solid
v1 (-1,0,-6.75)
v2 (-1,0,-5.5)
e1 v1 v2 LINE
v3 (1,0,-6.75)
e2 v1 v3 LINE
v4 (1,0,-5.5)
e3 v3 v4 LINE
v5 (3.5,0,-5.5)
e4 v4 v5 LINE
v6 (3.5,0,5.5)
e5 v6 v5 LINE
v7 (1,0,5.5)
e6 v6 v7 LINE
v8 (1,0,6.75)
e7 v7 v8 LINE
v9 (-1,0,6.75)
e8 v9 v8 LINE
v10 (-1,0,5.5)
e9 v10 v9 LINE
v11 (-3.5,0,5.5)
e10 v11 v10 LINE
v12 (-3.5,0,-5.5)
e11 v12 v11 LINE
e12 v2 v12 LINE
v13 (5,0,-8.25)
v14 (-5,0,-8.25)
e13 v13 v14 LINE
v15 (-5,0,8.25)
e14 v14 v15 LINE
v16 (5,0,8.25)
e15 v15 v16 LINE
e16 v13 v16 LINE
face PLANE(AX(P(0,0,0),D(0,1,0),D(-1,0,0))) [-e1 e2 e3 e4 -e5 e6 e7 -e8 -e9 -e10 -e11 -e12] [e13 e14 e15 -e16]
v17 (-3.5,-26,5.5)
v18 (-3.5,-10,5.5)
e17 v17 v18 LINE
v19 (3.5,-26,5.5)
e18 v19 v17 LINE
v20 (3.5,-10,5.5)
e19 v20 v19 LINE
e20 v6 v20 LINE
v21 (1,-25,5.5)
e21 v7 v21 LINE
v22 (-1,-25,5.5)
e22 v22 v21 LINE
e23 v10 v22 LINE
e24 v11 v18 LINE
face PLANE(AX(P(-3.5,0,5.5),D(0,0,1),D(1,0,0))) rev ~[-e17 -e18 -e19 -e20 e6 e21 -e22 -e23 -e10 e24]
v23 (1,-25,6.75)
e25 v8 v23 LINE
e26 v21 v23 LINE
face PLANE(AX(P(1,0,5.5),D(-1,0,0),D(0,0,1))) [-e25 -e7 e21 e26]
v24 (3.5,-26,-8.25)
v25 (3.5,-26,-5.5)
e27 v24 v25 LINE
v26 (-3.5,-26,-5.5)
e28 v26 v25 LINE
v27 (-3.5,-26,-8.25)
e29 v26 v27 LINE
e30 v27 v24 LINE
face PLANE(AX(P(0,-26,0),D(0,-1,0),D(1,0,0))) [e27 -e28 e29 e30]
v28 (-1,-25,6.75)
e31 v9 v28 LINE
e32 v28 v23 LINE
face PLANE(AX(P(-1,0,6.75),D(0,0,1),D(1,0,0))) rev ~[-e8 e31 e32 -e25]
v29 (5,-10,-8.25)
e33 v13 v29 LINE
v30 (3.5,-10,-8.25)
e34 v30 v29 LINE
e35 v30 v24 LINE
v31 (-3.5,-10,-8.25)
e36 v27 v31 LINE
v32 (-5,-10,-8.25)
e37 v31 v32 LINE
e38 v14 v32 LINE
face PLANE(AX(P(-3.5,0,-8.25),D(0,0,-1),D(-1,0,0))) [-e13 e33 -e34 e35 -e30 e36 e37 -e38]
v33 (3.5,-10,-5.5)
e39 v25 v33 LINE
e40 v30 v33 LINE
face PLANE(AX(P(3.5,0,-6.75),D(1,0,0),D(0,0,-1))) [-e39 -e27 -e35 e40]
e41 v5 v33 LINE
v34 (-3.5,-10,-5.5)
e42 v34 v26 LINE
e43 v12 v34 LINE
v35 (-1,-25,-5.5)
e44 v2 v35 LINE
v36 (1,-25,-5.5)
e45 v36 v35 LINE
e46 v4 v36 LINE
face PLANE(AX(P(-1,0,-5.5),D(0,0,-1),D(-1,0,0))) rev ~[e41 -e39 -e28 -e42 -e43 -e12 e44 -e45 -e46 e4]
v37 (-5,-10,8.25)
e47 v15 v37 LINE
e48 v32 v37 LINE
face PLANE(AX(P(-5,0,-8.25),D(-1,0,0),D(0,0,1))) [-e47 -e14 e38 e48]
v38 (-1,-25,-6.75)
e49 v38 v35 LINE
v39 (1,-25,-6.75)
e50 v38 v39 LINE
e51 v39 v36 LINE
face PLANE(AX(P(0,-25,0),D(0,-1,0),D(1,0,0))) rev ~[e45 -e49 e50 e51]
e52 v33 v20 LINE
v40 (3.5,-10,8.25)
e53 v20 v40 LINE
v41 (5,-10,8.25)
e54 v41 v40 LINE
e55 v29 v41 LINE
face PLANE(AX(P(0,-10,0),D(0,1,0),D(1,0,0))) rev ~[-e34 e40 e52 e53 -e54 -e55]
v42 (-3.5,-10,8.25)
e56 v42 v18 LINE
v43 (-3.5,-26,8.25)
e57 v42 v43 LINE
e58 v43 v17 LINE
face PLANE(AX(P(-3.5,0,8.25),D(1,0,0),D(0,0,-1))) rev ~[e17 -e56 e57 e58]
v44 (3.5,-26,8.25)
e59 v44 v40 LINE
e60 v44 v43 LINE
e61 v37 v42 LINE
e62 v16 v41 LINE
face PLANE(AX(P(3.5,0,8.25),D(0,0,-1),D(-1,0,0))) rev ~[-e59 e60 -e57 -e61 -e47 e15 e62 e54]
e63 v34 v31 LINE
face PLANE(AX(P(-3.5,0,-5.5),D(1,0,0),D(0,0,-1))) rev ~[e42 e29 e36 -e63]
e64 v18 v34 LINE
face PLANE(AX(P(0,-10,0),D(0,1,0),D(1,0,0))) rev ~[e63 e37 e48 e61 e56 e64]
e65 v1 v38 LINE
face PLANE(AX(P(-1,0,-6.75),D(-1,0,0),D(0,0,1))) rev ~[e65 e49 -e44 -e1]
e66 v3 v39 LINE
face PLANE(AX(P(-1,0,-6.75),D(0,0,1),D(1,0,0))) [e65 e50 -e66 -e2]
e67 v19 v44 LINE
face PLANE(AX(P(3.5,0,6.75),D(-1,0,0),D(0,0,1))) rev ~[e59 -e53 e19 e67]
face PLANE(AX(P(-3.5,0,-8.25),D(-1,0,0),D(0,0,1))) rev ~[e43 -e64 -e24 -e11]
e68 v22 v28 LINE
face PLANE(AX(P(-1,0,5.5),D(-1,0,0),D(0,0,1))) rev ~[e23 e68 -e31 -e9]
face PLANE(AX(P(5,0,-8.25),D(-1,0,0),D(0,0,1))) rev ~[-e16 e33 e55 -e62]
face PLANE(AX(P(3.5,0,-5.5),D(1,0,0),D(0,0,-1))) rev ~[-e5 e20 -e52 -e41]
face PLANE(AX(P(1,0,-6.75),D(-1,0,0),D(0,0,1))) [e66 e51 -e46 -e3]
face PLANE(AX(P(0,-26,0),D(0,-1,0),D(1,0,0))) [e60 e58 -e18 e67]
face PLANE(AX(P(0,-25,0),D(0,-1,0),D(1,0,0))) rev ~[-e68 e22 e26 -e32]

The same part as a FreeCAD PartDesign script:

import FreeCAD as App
import Part
import Sketcher

V = App.Vector

doc = App.newDocument("Part")
params = doc.addObject("Spreadsheet::Sheet", "Params")
for row, (alias, value) in enumerate([
    ("sketch1_width", "2 mm"),
    ("sketch1_width2", "2.5 mm"),
    ("sketch1_height", "1.25 mm"),
    ("pad1_length", "25 mm"),
    ("sketch2_width", "1.5 mm"),
    ("sketch2_height", "16.5 mm"),
    ("pad2_length", "10 mm"),
    ("sketch3_width", "7 mm"),
    ("sketch3_height", "2.75 mm"),
    ("pad3_length", "1 mm"),
], start=1):
    params.set(f"A{row}", alias)
    params.set(f"B{row}", "=" + value)
    params.setAlias(f"B{row}", alias)

body = doc.addObject("PartDesign::Body", "Body")
body.AllowCompound = True

sketch1 = doc.addObject("Sketcher::SketchObject", "Sketch")
body.addObject(sketch1)
sketch1.AttachmentSupport = (doc.XZ_Plane, [""])
sketch1.MapMode = "FlatFace"
sketch1.addGeometry([
    Part.LineSegment(V(1, 6.8, 0), V(-1, 6.8, 0)),
    Part.LineSegment(V(-1, 6.8, 0), V(-1, 5.5, 0)),
    Part.LineSegment(V(-1, 5.5, 0), V(-3.5, 5.5, 0)),
    Part.LineSegment(V(-3.5, 5.5, 0), V(-3.5, 8.2, 0)),
    Part.LineSegment(V(-3.5, 8.2, 0), V(3.5, 8.2, 0)),
    Part.LineSegment(V(3.5, 8.2, 0), V(3.5, 5.5, 0)),
    Part.LineSegment(V(3.5, 5.5, 0), V(1, 5.5, 0)),
    Part.LineSegment(V(1, 5.5, 0), V(1, 6.8, 0)),
    Part.LineSegment(V(-3.5, -5.5, 0), V(-1, -5.5, 0)),
    Part.LineSegment(V(-1, -5.5, 0), V(-1, -6.8, 0)),
    Part.LineSegment(V(-1, -6.8, 0), V(1, -6.8, 0)),
    Part.LineSegment(V(1, -6.8, 0), V(1, -5.5, 0)),
    Part.LineSegment(V(1, -5.5, 0), V(3.5, -5.5, 0)),
    Part.LineSegment(V(3.5, -5.5, 0), V(3.5, -8.2, 0)),
    Part.LineSegment(V(3.5, -8.2, 0), V(-3.5, -8.2, 0)),
    Part.LineSegment(V(-3.5, -8.2, 0), V(-3.5, -5.5, 0)),
], False)
sketch1.addConstraint([
    Sketcher.Constraint("Coincident", 0, 2, 1, 1),
    Sketcher.Constraint("Coincident", 1, 2, 2, 1),
    Sketcher.Constraint("Coincident", 2, 2, 3, 1),
    Sketcher.Constraint("Coincident", 3, 2, 4, 1),
    Sketcher.Constraint("Coincident", 4, 2, 5, 1),
    Sketcher.Constraint("Coincident", 5, 2, 6, 1),
    Sketcher.Constraint("Coincident", 6, 2, 7, 1),
    Sketcher.Constraint("Coincident", 7, 2, 0, 1),
    Sketcher.Constraint("Coincident", 8, 2, 9, 1),
    Sketcher.Constraint("Coincident", 9, 2, 10, 1),
    Sketcher.Constraint("Coincident", 10, 2, 11, 1),
    Sketcher.Constraint("Coincident", 11, 2, 12, 1),
    Sketcher.Constraint("Coincident", 12, 2, 13, 1),
    Sketcher.Constraint("Coincident", 13, 2, 14, 1),
    Sketcher.Constraint("Coincident", 14, 2, 15, 1),
    Sketcher.Constraint("Coincident", 15, 2, 8, 1),
    Sketcher.Constraint("Horizontal", 0),
    Sketcher.Constraint("Vertical", 1),
    Sketcher.Constraint("Horizontal", 2),
    Sketcher.Constraint("Vertical", 3),
    Sketcher.Constraint("Horizontal", 4),
    Sketcher.Constraint("Vertical", 5),
    Sketcher.Constraint("Horizontal", 6),
    Sketcher.Constraint("Vertical", 7),
    Sketcher.Constraint("Horizontal", 8),
    Sketcher.Constraint("Vertical", 9),
    Sketcher.Constraint("Horizontal", 10),
    Sketcher.Constraint("Vertical", 11),
    Sketcher.Constraint("Horizontal", 12),
    Sketcher.Constraint("Vertical", 13),
    Sketcher.Constraint("Horizontal", 14),
    Sketcher.Constraint("Vertical", 15),
    Sketcher.Constraint("Symmetric", 6, 2, 8, 2, -1, 1),
    Sketcher.Constraint("Symmetric", 0, 2, 10, 2, -1, 1),
    Sketcher.Constraint("Symmetric", 2, 2, 12, 2, -1, 1),
    Sketcher.Constraint("Symmetric", 4, 2, 14, 2, -1, 1),
    Sketcher.Constraint("Symmetric", 2, 2, 5, 2, -2),
    Sketcher.Constraint("Vertical", 1, 2, 8, 2),
    Sketcher.Constraint("DistanceX", 0, 2, 0, 1, 2.0),
    Sketcher.Constraint("DistanceX", 2, 2, 2, 1, 2.5),
    Sketcher.Constraint("DistanceY", 8, 2, 1, 2, 11.0),
    Sketcher.Constraint("DistanceY", 0, 2, 3, 2, 1.5),
    Sketcher.Constraint("DistanceY", 1, 2, 1, 1, 1.25),
])
sketch1.setExpression("Constraints[38]", "Params.sketch1_width")
sketch1.setExpression("Constraints[39]", "Params.sketch1_width2")
sketch1.setExpression("Constraints[42]", "Params.sketch1_height")
pad1 = doc.addObject("PartDesign::Pad", "Pad")
body.addObject(pad1)
pad1.Profile = sketch1
pad1.setExpression("Length", "Params.pad1_length")

sketch2 = doc.addObject("Sketcher::SketchObject", "Sketch001")
body.addObject(sketch2)
sketch2.AttachmentSupport = (doc.XZ_Plane, [""])
sketch2.MapMode = "FlatFace"
sketch2.addGeometry([
    Part.LineSegment(V(3.5, -8.2, 0), V(3.5, 8.2, 0)),
    Part.LineSegment(V(3.5, 8.2, 0), V(5, 8.2, 0)),
    Part.LineSegment(V(5, 8.2, 0), V(5, -8.2, 0)),
    Part.LineSegment(V(5, -8.2, 0), V(3.5, -8.2, 0)),
    Part.LineSegment(V(-3.5, 8.2, 0), V(-3.5, -8.2, 0)),
    Part.LineSegment(V(-3.5, -8.2, 0), V(-5, -8.2, 0)),
    Part.LineSegment(V(-5, -8.2, 0), V(-5, 8.2, 0)),
    Part.LineSegment(V(-5, 8.2, 0), V(-3.5, 8.2, 0)),
], False)
sketch2.addConstraint([
    Sketcher.Constraint("Coincident", 0, 2, 1, 1),
    Sketcher.Constraint("Coincident", 1, 2, 2, 1),
    Sketcher.Constraint("Coincident", 2, 2, 3, 1),
    Sketcher.Constraint("Coincident", 3, 2, 0, 1),
    Sketcher.Constraint("Coincident", 4, 2, 5, 1),
    Sketcher.Constraint("Coincident", 5, 2, 6, 1),
    Sketcher.Constraint("Coincident", 6, 2, 7, 1),
    Sketcher.Constraint("Coincident", 7, 2, 4, 1),
    Sketcher.Constraint("Vertical", 0),
    Sketcher.Constraint("Horizontal", 1),
    Sketcher.Constraint("Vertical", 2),
    Sketcher.Constraint("Horizontal", 3),
    Sketcher.Constraint("Vertical", 4),
    Sketcher.Constraint("Horizontal", 5),
    Sketcher.Constraint("Vertical", 6),
    Sketcher.Constraint("Horizontal", 7),
    Sketcher.Constraint("Symmetric", 0, 2, 4, 2, -1, 1),
    Sketcher.Constraint("Symmetric", 2, 2, 6, 2, -1, 1),
    Sketcher.Constraint("Horizontal", 3, 2, 4, 2),
    Sketcher.Constraint("DistanceX", 1, 1, 1, 2, 1.5),
    Sketcher.Constraint("DistanceY", 0, 1, 0, 2, 16.5),
    Sketcher.Constraint("DistanceX", -1, 1, 1, 2, 5.0),
])
sketch2.setExpression("Constraints[19]", "Params.sketch2_width")
sketch2.setExpression("Constraints[20]", "Params.sketch2_height")
pad2 = doc.addObject("PartDesign::Pad", "Pad001")
body.addObject(pad2)
pad2.Profile = sketch2
pad2.setExpression("Length", "Params.pad2_length")

sketch3 = doc.addObject("Sketcher::SketchObject", "Sketch002")
body.addObject(sketch3)
sketch3.AttachmentSupport = (doc.XZ_Plane, [""])
sketch3.MapMode = "FlatFace"
sketch3.AttachmentOffset = App.Placement(V(0, 0, 25), App.Rotation())
sketch3.addGeometry([
    Part.LineSegment(V(-3.5, 8.2, 0), V(-3.5, 5.5, 0)),
    Part.LineSegment(V(-3.5, 5.5, 0), V(3.5, 5.5, 0)),
    Part.LineSegment(V(3.5, 5.5, 0), V(3.5, 8.2, 0)),
    Part.LineSegment(V(3.5, 8.2, 0), V(-3.5, 8.2, 0)),
    Part.LineSegment(V(3.5, -8.2, 0), V(3.5, -5.5, 0)),
    Part.LineSegment(V(3.5, -5.5, 0), V(-3.5, -5.5, 0)),
    Part.LineSegment(V(-3.5, -5.5, 0), V(-3.5, -8.2, 0)),
    Part.LineSegment(V(-3.5, -8.2, 0), V(3.5, -8.2, 0)),
], False)
sketch3.addConstraint([
    Sketcher.Constraint("Coincident", 0, 2, 1, 1),
    Sketcher.Constraint("Coincident", 1, 2, 2, 1),
    Sketcher.Constraint("Coincident", 2, 2, 3, 1),
    Sketcher.Constraint("Coincident", 3, 2, 0, 1),
    Sketcher.Constraint("Coincident", 4, 2, 5, 1),
    Sketcher.Constraint("Coincident", 5, 2, 6, 1),
    Sketcher.Constraint("Coincident", 6, 2, 7, 1),
    Sketcher.Constraint("Coincident", 7, 2, 4, 1),
    Sketcher.Constraint("Vertical", 0),
    Sketcher.Constraint("Horizontal", 1),
    Sketcher.Constraint("Vertical", 2),
    Sketcher.Constraint("Horizontal", 3),
    Sketcher.Constraint("Vertical", 4),
    Sketcher.Constraint("Horizontal", 5),
    Sketcher.Constraint("Vertical", 6),
    Sketcher.Constraint("Horizontal", 7),
    Sketcher.Constraint("Symmetric", 0, 2, 4, 2, -1, 1),
    Sketcher.Constraint("Symmetric", 2, 2, 6, 2, -1, 1),
    Sketcher.Constraint("Vertical", 2, 2, 4, 2),
    Sketcher.Constraint("DistanceX", 1, 1, 1, 2, 7.0),
    Sketcher.Constraint("DistanceY", 4, 2, 1, 2, 11.0),
    Sketcher.Constraint("DistanceY", 0, 2, 0, 1, 2.75),
])
sketch3.setExpression("Constraints[19]", "Params.sketch3_width")
sketch3.setExpression("Constraints[21]", "Params.sketch3_height")
pad3 = doc.addObject("PartDesign::Pad", "Pad002")
body.addObject(pad3)
pad3.Profile = sketch3
pad3.setExpression("Length", "Params.pad3_length")

doc.recompute()
